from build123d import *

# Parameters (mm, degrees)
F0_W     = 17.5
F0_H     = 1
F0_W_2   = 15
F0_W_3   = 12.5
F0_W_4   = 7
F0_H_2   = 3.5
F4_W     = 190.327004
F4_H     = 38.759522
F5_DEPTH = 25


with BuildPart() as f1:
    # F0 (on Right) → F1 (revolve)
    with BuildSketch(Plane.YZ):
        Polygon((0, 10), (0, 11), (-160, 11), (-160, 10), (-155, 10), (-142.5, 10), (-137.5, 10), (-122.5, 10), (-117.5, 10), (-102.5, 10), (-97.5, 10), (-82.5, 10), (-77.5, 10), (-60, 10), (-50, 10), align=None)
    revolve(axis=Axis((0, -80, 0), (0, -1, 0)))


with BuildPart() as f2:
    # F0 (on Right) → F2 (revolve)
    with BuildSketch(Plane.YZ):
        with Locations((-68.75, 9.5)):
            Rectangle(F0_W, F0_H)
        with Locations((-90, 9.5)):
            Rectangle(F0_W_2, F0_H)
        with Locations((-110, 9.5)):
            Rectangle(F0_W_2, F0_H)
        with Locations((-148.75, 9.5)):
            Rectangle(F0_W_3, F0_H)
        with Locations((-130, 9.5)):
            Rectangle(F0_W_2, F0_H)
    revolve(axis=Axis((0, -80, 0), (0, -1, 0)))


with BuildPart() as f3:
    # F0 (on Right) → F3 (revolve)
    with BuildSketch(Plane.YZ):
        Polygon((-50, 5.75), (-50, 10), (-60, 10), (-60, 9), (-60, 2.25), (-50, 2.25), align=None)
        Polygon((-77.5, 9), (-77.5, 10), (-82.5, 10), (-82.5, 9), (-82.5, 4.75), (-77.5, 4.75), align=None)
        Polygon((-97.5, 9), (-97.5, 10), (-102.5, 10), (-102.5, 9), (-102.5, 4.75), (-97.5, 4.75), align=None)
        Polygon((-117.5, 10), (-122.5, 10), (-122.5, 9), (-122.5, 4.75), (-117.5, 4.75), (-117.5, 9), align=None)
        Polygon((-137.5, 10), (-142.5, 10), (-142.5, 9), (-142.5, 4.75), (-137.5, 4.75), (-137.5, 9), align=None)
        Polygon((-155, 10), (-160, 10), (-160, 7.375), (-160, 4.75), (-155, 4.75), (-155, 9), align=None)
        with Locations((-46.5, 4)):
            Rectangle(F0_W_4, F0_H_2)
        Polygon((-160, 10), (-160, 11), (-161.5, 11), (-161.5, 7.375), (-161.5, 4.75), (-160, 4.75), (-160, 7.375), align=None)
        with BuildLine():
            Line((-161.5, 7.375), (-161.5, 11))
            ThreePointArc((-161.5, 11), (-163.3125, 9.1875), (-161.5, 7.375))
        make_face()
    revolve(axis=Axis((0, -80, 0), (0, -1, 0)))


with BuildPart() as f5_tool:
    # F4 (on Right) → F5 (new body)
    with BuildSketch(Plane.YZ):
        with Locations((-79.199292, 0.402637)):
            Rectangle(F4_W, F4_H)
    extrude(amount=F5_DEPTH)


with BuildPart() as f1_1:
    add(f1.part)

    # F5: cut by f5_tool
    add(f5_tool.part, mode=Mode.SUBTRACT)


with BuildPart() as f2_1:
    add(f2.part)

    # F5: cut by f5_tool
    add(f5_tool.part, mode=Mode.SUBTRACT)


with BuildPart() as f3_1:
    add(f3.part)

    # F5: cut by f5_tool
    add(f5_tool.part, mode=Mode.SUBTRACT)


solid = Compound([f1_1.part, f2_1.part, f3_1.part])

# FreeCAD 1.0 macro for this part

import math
import FreeCAD as App
import Part
import Sketcher

V = App.Vector
Q = App.Units.Quantity


def add_polygon(sketch, points):
    """Adds a closed chain of lines whose ends are joined by coincident constraints."""
    first, n = sketch.GeometryCount, len(points)
    for a, b in zip(points, points[1:] + points[:1]):
        sketch.addGeometry(Part.LineSegment(App.Vector(*a, 0), App.Vector(*b, 0)), False)
    for i in range(n):
        sketch.addConstraint(Sketcher.Constraint("Coincident", first + i, 2, first + (i + 1) % n, 1))

doc = App.newDocument("Part")
params = doc.addObject("Spreadsheet::Sheet", "Params")
for row, (alias, value) in enumerate([
    ("sketch1_width", "160 mm"),
    ("sketch1_height", "1 mm"),
    ("revolution_angle", "360 deg"),
    ("sketch2_width", "15 mm"),
    ("sketch2_height", "1 mm"),
    ("sketch2_width2", "17.5 mm"),
    ("sketch2_width3", "12.5 mm"),
    ("revolution2_angle", "360 deg"),
    ("sketch3_width", "10 mm"),
    ("sketch3_width2", "17 mm"),
    ("sketch3_width3", "5 mm"),
    ("sketch3_height", "1 mm"),
    ("sketch3_width4", "1.5 mm"),
    ("revolution3_angle", "360 deg"),
    ("pad1_length", "25 mm"),
], start=1):
    params.set(f"A{row}", alias)
    params.set(f"B{row}", "=" + value)
    params.setAlias(f"B{row}", alias)

body = doc.addObject("PartDesign::Body", "Body")

sketch1 = body.newObject("Sketcher::SketchObject", "Sketch")
sketch1.AttachmentSupport = (doc.getObject("YZ_Plane"), [""])
sketch1.MapMode = "FlatFace"
add_polygon(sketch1, [(0, 10), (0, 11), (-160, 11), (-160, 10)])
sketch1.addConstraint([
    Sketcher.Constraint("Vertical", 0),
    Sketcher.Constraint("Horizontal", 1),
    Sketcher.Constraint("Vertical", 2),
    Sketcher.Constraint("Horizontal", 3),
    Sketcher.Constraint("PointOnObject", 0, 2, -2),
    Sketcher.Constraint("DistanceX", 1, 2, 1, 1, Q("160 mm")),
    Sketcher.Constraint("DistanceY", 0, 1, 0, 2, Q("1 mm")),
    Sketcher.Constraint("DistanceY", -1, 1, 0, 2, Q("11 mm")),
])
sketch1.setExpression("Constraints[9]", "Params.sketch1_width")
sketch1.setExpression("Constraints[10]", "Params.sketch1_height")
revolution = body.newObject("PartDesign::Revolution", "Revolution")
revolution.Profile = sketch1
revolution.ReferenceAxis = (sketch1, ["H_Axis"])
revolution.setExpression("Angle", "Params.revolution_angle")
body2 = doc.addObject("PartDesign::Body", "Body001")
body2.AllowCompound = True

sketch2 = body2.newObject("Sketcher::SketchObject", "Sketch001")
sketch2.AttachmentSupport = (doc.getObject("YZ_Plane001"), [""])
sketch2.MapMode = "FlatFace"
add_polygon(sketch2, [(-77.5, 10), (-77.5, 9), (-60, 9), (-60, 10)])
add_polygon(sketch2, [(-97.5, 10), (-97.5, 9), (-82.5, 9), (-82.5, 10)])
add_polygon(sketch2, [(-117.5, 10), (-117.5, 9), (-102.5, 9), (-102.5, 10)])
add_polygon(sketch2, [(-155, 10), (-155, 9), (-142.5, 9), (-142.5, 10)])
add_polygon(sketch2, [(-137.5, 10), (-137.5, 9), (-122.5, 9), (-122.5, 10)])
sketch2.addConstraint([
    Sketcher.Constraint("Vertical", 0),
    Sketcher.Constraint("Horizontal", 1),
    Sketcher.Constraint("Vertical", 2),
    Sketcher.Constraint("Horizontal", 3),
    Sketcher.Constraint("Vertical", 4),
    Sketcher.Constraint("Horizontal", 5),
    Sketcher.Constraint("Vertical", 6),
    Sketcher.Constraint("Horizontal", 7),
    Sketcher.Constraint("Vertical", 8),
    Sketcher.Constraint("Horizontal", 9),
    Sketcher.Constraint("Vertical", 10),
    Sketcher.Constraint("Horizontal", 11),
    Sketcher.Constraint("Vertical", 12),
    Sketcher.Constraint("Horizontal", 13),
    Sketcher.Constraint("Vertical", 14),
    Sketcher.Constraint("Horizontal", 15),
    Sketcher.Constraint("Vertical", 16),
    Sketcher.Constraint("Horizontal", 17),
    Sketcher.Constraint("Vertical", 18),
    Sketcher.Constraint("Horizontal", 19),
    Sketcher.Constraint("Horizontal", 1, 2, 4, 2),
    Sketcher.Constraint("Horizontal", 3, 2, 6, 2),
    Sketcher.Constraint("Horizontal", 5, 2, 8, 2),
    Sketcher.Constraint("Horizontal", 7, 2, 10, 2),
    Sketcher.Constraint("Horizontal", 9, 2, 12, 2),
    Sketcher.Constraint("Horizontal", 11, 2, 14, 2),
    Sketcher.Constraint("Horizontal", 13, 2, 16, 2),
    Sketcher.Constraint("Horizontal", 15, 2, 18, 2),
    Sketcher.Constraint("Equal", 7, 9),
    Sketcher.Constraint("Equal", 11, 17),
    Sketcher.Constraint("DistanceX", 5, 1, 5, 2, Q("15 mm")),
    Sketcher.Constraint("DistanceY", 0, 2, 0, 1, Q("1 mm")),
    Sketcher.Constraint("DistanceX", 1, 1, 1, 2, Q("17.5 mm")),
    Sketcher.Constraint("DistanceX", 13, 1, 13, 2, Q("12.5 mm")),
    Sketcher.Constraint("DistanceY", -1, 1, 0, 2, Q("9 mm")),
    Sketcher.Constraint("DistanceX", 1, 2, -1, 1, Q("60 mm")),
    Sketcher.Constraint("DistanceX", 12, 2, -1, 1, Q("155 mm")),
    Sketcher.Constraint("DistanceX", 4, 2, 0, 2, Q("20 mm")),
    Sketcher.Constraint("DistanceX", 8, 2, 4, 2, Q("20 mm")),
    Sketcher.Constraint("DistanceX", 13, 2, 16, 2, Q("5 mm")),
])
sketch2.setExpression("Constraints[50]", "Params.sketch2_width")
sketch2.setExpression("Constraints[51]", "Params.sketch2_height")
sketch2.setExpression("Constraints[52]", "Params.sketch2_width2")
sketch2.setExpression("Constraints[53]", "Params.sketch2_width3")
revolution2 = body2.newObject("PartDesign::Revolution", "Revolution001")
revolution2.Profile = sketch2
revolution2.ReferenceAxis = (sketch2, ["H_Axis"])
revolution2.setExpression("Angle", "Params.revolution2_angle")
body3 = doc.addObject("PartDesign::Body", "Body002")
body3.AllowCompound = True

sketch3 = body3.newObject("Sketcher::SketchObject", "Sketch002")
sketch3.AttachmentSupport = (doc.getObject("YZ_Plane002"), [""])
sketch3.MapMode = "FlatFace"
add_polygon(sketch3, [(-50, 10), (-60, 10), (-60, 2.25), (-43, 2.25), (-43, 5.75), (-50, 5.75)])
add_polygon(sketch3, [(-77.5, 10), (-82.5, 10), (-82.5, 4.75), (-77.5, 4.75)])
add_polygon(sketch3, [(-97.5, 10), (-102.5, 10), (-102.5, 4.75), (-97.5, 4.75)])
add_polygon(sketch3, [(-117.5, 10), (-122.5, 10), (-122.5, 4.75), (-117.5, 4.75)])
add_polygon(sketch3, [(-137.5, 10), (-142.5, 10), (-142.5, 4.75), (-137.5, 4.75)])
sketch3.addGeometry(Part.LineSegment(V(-155, 10, 0), V(-160, 10, 0)), False)
sketch3.addGeometry(Part.LineSegment(V(-160, 10, 0), V(-160, 11, 0)), False)
sketch3.addGeometry(Part.LineSegment(V(-160, 11, 0), V(-161.5, 11, 0)), False)
sketch3.addGeometry(Part.ArcOfCircle(Part.Circle(V(-161.5, 9.1875, 0), V(0, 0, 1), 1.8125), math.radians(90), math.radians(270)), False)
sketch3.addGeometry(Part.LineSegment(V(-161.5, 7.375, 0), V(-161.5, 4.75, 0)), False)
sketch3.addGeometry(Part.LineSegment(V(-161.5, 4.75, 0), V(-155, 4.75, 0)), False)
sketch3.addGeometry(Part.LineSegment(V(-155, 4.75, 0), V(-155, 10, 0)), False)
sketch3.addConstraint([
    Sketcher.Constraint("Coincident", 22, 2, 23, 1),
    Sketcher.Constraint("Coincident", 23, 2, 24, 1),
    Sketcher.Constraint("Tangent", 24, 2, 25, 1),
    Sketcher.Constraint("Coincident", 25, 2, 26, 1),
    Sketcher.Constraint("Coincident", 26, 2, 27, 1),
    Sketcher.Constraint("Coincident", 27, 2, 28, 1),
    Sketcher.Constraint("Coincident", 28, 2, 22, 1),
    Sketcher.Constraint("Horizontal", 0),
    Sketcher.Constraint("Vertical", 1),
    Sketcher.Constraint("Horizontal", 2),
    Sketcher.Constraint("Vertical", 3),
    Sketcher.Constraint("Horizontal", 4),
    Sketcher.Constraint("Vertical", 5),
    Sketcher.Constraint("Horizontal", 6),
    Sketcher.Constraint("Vertical", 7),
    Sketcher.Constraint("Horizontal", 8),
    Sketcher.Constraint("Vertical", 9),
    Sketcher.Constraint("Horizontal", 10),
    Sketcher.Constraint("Vertical", 11),
    Sketcher.Constraint("Horizontal", 12),
    Sketcher.Constraint("Vertical", 13),
    Sketcher.Constraint("Horizontal", 14),
    Sketcher.Constraint("Vertical", 15),
    Sketcher.Constraint("Horizontal", 16),
    Sketcher.Constraint("Vertical", 17),
    Sketcher.Constraint("Horizontal", 18),
    Sketcher.Constraint("Vertical", 19),
    Sketcher.Constraint("Horizontal", 20),
    Sketcher.Constraint("Vertical", 21),
    Sketcher.Constraint("Horizontal", 22),
    Sketcher.Constraint("Vertical", 23),
    Sketcher.Constraint("Horizontal", 24),
    Sketcher.Constraint("Vertical", 26),
    Sketcher.Constraint("Horizontal", 27),
    Sketcher.Constraint("Vertical", 28),
    Sketcher.Constraint("Horizontal", 5, 2, 6, 2),
    Sketcher.Constraint("Horizontal", 9, 2, 10, 2),
    Sketcher.Constraint("Horizontal", 8, 2, 11, 2),
    Sketcher.Constraint("Horizontal", 13, 2, 14, 2),
    Sketcher.Constraint("Horizontal", 12, 2, 15, 2),
    Sketcher.Constraint("Horizontal", 17, 2, 18, 2),
    Sketcher.Constraint("Horizontal", 16, 2, 19, 2),
    Sketcher.Constraint("Horizontal", 21, 2, 22, 2),
    Sketcher.Constraint("Horizontal", 20, 2, 26, 2),
    Sketcher.Constraint("Vertical", 24, 2, 25, 2),
    Sketcher.Constraint("Equal", 8, 10),
    Sketcher.Constraint("Equal", 12, 14),
    Sketcher.Constraint("Equal", 16, 18),
    Sketcher.Constraint("Equal", 20, 22),
    Sketcher.Constraint("DistanceX", 0, 2, 0, 1, Q("10 mm")),
    Sketcher.Constraint("DistanceX", 2, 1, 2, 2, Q("17 mm")),
    Sketcher.Constraint("DistanceX", 6, 2, 6, 1, Q("5 mm")),
    Sketcher.Constraint("DistanceY", 23, 1, 23, 2, Q("1 mm")),
    Sketcher.Constraint("DistanceX", 24, 2, 24, 1, Q("1.5 mm")),
    Sketcher.Constraint("DistanceY", 3, 1, 3, 2, Q("3.5 mm")),
    Sketcher.Constraint("DistanceX", 0, 2, -1, 1, Q("60 mm")),
    Sketcher.Constraint("DistanceY", -1, 1, 0, 2, Q("10 mm")),
    Sketcher.Constraint("DistanceX", 22, 2, -1, 1, Q("160 mm")),
    Sketcher.Constraint("DistanceY", 7, 2, 4, 2, Q("1 mm")),
    Sketcher.Constraint("DistanceX", 10, 2, 6, 2, Q("20 mm")),
    Sketcher.Constraint("DistanceX", 14, 2, 10, 2, Q("20 mm")),
    Sketcher.Constraint("DistanceX", 25, 3, 14, 2, Q("39 mm")),
    Sketcher.Constraint("DistanceX", 25, 3, 18, 2, Q("19 mm")),
    Sketcher.Constraint("DistanceY", 1, 2, 1, 1, Q("7.75 mm")),
    Sketcher.Constraint("Radius", 25, Q("1.8125 mm")),
])
sketch3.setExpression("Constraints[71]", "Params.sketch3_width")
sketch3.setExpression("Constraints[72]", "Params.sketch3_width2")
sketch3.setExpression("Constraints[73]", "Params.sketch3_width3")
sketch3.setExpression("Constraints[74]", "Params.sketch3_height")
sketch3.setExpression("Constraints[75]", "Params.sketch3_width4")
revolution3 = body3.newObject("PartDesign::Revolution", "Revolution002")
revolution3.Profile = sketch3
revolution3.ReferenceAxis = (sketch3, ["H_Axis"])
revolution3.setExpression("Angle", "Params.revolution3_angle")
body4 = doc.addObject("PartDesign::Body", "Body003")

sketch4 = body4.newObject("Sketcher::SketchObject", "Sketch003")
sketch4.AttachmentSupport = (doc.getObject("YZ_Plane003"), [""])
sketch4.MapMode = "FlatFace"
add_polygon(sketch4, [(-174.362794, 19.782398), (-174.362794, -18.977124), (15.96421, -18.977124), (15.96421, 19.782398)])
sketch4.addConstraint([
    Sketcher.Constraint("Vertical", 0),
    Sketcher.Constraint("Horizontal", 1),
    Sketcher.Constraint("Vertical", 2),
    Sketcher.Constraint("Horizontal", 3),
    Sketcher.Constraint("DistanceY", -1, 1, 2, 2, Q("19.782398 mm")),
    Sketcher.Constraint("DistanceX", 1, 1, 1, 2, Q("190.327004 mm")),
    Sketcher.Constraint("DistanceY", 0, 2, 0, 1, Q("38.759522 mm")),
    Sketcher.Constraint("DistanceX", -1, 1, 1, 2, Q("15.96421 mm")),
])
pad1 = body4.newObject("PartDesign::Pad", "Pad")
pad1.Profile = sketch4
pad1.setExpression("Length", "Params.pad1_length")
doc.recompute()

body5 = doc.addObject("PartDesign::Body", "Body004")
body5.BaseFeature = body4
boolean = body.newObject("PartDesign::Boolean", "Boolean")
boolean.Type = "Cut"
boolean.addObjects([body5])
doc.recompute()
body2.AllowCompound = True
doc.recompute()

body6 = doc.addObject("PartDesign::Body", "Body005")
body6.BaseFeature = body4
boolean2 = body2.newObject("PartDesign::Boolean", "Boolean001")
boolean2.Type = "Cut"
boolean2.addObjects([body6])
doc.recompute()
body3.AllowCompound = True
doc.recompute()

boolean3 = body3.newObject("PartDesign::Boolean", "Boolean002")
boolean3.Type = "Cut"
boolean3.addObjects([body4])

doc.recompute()
